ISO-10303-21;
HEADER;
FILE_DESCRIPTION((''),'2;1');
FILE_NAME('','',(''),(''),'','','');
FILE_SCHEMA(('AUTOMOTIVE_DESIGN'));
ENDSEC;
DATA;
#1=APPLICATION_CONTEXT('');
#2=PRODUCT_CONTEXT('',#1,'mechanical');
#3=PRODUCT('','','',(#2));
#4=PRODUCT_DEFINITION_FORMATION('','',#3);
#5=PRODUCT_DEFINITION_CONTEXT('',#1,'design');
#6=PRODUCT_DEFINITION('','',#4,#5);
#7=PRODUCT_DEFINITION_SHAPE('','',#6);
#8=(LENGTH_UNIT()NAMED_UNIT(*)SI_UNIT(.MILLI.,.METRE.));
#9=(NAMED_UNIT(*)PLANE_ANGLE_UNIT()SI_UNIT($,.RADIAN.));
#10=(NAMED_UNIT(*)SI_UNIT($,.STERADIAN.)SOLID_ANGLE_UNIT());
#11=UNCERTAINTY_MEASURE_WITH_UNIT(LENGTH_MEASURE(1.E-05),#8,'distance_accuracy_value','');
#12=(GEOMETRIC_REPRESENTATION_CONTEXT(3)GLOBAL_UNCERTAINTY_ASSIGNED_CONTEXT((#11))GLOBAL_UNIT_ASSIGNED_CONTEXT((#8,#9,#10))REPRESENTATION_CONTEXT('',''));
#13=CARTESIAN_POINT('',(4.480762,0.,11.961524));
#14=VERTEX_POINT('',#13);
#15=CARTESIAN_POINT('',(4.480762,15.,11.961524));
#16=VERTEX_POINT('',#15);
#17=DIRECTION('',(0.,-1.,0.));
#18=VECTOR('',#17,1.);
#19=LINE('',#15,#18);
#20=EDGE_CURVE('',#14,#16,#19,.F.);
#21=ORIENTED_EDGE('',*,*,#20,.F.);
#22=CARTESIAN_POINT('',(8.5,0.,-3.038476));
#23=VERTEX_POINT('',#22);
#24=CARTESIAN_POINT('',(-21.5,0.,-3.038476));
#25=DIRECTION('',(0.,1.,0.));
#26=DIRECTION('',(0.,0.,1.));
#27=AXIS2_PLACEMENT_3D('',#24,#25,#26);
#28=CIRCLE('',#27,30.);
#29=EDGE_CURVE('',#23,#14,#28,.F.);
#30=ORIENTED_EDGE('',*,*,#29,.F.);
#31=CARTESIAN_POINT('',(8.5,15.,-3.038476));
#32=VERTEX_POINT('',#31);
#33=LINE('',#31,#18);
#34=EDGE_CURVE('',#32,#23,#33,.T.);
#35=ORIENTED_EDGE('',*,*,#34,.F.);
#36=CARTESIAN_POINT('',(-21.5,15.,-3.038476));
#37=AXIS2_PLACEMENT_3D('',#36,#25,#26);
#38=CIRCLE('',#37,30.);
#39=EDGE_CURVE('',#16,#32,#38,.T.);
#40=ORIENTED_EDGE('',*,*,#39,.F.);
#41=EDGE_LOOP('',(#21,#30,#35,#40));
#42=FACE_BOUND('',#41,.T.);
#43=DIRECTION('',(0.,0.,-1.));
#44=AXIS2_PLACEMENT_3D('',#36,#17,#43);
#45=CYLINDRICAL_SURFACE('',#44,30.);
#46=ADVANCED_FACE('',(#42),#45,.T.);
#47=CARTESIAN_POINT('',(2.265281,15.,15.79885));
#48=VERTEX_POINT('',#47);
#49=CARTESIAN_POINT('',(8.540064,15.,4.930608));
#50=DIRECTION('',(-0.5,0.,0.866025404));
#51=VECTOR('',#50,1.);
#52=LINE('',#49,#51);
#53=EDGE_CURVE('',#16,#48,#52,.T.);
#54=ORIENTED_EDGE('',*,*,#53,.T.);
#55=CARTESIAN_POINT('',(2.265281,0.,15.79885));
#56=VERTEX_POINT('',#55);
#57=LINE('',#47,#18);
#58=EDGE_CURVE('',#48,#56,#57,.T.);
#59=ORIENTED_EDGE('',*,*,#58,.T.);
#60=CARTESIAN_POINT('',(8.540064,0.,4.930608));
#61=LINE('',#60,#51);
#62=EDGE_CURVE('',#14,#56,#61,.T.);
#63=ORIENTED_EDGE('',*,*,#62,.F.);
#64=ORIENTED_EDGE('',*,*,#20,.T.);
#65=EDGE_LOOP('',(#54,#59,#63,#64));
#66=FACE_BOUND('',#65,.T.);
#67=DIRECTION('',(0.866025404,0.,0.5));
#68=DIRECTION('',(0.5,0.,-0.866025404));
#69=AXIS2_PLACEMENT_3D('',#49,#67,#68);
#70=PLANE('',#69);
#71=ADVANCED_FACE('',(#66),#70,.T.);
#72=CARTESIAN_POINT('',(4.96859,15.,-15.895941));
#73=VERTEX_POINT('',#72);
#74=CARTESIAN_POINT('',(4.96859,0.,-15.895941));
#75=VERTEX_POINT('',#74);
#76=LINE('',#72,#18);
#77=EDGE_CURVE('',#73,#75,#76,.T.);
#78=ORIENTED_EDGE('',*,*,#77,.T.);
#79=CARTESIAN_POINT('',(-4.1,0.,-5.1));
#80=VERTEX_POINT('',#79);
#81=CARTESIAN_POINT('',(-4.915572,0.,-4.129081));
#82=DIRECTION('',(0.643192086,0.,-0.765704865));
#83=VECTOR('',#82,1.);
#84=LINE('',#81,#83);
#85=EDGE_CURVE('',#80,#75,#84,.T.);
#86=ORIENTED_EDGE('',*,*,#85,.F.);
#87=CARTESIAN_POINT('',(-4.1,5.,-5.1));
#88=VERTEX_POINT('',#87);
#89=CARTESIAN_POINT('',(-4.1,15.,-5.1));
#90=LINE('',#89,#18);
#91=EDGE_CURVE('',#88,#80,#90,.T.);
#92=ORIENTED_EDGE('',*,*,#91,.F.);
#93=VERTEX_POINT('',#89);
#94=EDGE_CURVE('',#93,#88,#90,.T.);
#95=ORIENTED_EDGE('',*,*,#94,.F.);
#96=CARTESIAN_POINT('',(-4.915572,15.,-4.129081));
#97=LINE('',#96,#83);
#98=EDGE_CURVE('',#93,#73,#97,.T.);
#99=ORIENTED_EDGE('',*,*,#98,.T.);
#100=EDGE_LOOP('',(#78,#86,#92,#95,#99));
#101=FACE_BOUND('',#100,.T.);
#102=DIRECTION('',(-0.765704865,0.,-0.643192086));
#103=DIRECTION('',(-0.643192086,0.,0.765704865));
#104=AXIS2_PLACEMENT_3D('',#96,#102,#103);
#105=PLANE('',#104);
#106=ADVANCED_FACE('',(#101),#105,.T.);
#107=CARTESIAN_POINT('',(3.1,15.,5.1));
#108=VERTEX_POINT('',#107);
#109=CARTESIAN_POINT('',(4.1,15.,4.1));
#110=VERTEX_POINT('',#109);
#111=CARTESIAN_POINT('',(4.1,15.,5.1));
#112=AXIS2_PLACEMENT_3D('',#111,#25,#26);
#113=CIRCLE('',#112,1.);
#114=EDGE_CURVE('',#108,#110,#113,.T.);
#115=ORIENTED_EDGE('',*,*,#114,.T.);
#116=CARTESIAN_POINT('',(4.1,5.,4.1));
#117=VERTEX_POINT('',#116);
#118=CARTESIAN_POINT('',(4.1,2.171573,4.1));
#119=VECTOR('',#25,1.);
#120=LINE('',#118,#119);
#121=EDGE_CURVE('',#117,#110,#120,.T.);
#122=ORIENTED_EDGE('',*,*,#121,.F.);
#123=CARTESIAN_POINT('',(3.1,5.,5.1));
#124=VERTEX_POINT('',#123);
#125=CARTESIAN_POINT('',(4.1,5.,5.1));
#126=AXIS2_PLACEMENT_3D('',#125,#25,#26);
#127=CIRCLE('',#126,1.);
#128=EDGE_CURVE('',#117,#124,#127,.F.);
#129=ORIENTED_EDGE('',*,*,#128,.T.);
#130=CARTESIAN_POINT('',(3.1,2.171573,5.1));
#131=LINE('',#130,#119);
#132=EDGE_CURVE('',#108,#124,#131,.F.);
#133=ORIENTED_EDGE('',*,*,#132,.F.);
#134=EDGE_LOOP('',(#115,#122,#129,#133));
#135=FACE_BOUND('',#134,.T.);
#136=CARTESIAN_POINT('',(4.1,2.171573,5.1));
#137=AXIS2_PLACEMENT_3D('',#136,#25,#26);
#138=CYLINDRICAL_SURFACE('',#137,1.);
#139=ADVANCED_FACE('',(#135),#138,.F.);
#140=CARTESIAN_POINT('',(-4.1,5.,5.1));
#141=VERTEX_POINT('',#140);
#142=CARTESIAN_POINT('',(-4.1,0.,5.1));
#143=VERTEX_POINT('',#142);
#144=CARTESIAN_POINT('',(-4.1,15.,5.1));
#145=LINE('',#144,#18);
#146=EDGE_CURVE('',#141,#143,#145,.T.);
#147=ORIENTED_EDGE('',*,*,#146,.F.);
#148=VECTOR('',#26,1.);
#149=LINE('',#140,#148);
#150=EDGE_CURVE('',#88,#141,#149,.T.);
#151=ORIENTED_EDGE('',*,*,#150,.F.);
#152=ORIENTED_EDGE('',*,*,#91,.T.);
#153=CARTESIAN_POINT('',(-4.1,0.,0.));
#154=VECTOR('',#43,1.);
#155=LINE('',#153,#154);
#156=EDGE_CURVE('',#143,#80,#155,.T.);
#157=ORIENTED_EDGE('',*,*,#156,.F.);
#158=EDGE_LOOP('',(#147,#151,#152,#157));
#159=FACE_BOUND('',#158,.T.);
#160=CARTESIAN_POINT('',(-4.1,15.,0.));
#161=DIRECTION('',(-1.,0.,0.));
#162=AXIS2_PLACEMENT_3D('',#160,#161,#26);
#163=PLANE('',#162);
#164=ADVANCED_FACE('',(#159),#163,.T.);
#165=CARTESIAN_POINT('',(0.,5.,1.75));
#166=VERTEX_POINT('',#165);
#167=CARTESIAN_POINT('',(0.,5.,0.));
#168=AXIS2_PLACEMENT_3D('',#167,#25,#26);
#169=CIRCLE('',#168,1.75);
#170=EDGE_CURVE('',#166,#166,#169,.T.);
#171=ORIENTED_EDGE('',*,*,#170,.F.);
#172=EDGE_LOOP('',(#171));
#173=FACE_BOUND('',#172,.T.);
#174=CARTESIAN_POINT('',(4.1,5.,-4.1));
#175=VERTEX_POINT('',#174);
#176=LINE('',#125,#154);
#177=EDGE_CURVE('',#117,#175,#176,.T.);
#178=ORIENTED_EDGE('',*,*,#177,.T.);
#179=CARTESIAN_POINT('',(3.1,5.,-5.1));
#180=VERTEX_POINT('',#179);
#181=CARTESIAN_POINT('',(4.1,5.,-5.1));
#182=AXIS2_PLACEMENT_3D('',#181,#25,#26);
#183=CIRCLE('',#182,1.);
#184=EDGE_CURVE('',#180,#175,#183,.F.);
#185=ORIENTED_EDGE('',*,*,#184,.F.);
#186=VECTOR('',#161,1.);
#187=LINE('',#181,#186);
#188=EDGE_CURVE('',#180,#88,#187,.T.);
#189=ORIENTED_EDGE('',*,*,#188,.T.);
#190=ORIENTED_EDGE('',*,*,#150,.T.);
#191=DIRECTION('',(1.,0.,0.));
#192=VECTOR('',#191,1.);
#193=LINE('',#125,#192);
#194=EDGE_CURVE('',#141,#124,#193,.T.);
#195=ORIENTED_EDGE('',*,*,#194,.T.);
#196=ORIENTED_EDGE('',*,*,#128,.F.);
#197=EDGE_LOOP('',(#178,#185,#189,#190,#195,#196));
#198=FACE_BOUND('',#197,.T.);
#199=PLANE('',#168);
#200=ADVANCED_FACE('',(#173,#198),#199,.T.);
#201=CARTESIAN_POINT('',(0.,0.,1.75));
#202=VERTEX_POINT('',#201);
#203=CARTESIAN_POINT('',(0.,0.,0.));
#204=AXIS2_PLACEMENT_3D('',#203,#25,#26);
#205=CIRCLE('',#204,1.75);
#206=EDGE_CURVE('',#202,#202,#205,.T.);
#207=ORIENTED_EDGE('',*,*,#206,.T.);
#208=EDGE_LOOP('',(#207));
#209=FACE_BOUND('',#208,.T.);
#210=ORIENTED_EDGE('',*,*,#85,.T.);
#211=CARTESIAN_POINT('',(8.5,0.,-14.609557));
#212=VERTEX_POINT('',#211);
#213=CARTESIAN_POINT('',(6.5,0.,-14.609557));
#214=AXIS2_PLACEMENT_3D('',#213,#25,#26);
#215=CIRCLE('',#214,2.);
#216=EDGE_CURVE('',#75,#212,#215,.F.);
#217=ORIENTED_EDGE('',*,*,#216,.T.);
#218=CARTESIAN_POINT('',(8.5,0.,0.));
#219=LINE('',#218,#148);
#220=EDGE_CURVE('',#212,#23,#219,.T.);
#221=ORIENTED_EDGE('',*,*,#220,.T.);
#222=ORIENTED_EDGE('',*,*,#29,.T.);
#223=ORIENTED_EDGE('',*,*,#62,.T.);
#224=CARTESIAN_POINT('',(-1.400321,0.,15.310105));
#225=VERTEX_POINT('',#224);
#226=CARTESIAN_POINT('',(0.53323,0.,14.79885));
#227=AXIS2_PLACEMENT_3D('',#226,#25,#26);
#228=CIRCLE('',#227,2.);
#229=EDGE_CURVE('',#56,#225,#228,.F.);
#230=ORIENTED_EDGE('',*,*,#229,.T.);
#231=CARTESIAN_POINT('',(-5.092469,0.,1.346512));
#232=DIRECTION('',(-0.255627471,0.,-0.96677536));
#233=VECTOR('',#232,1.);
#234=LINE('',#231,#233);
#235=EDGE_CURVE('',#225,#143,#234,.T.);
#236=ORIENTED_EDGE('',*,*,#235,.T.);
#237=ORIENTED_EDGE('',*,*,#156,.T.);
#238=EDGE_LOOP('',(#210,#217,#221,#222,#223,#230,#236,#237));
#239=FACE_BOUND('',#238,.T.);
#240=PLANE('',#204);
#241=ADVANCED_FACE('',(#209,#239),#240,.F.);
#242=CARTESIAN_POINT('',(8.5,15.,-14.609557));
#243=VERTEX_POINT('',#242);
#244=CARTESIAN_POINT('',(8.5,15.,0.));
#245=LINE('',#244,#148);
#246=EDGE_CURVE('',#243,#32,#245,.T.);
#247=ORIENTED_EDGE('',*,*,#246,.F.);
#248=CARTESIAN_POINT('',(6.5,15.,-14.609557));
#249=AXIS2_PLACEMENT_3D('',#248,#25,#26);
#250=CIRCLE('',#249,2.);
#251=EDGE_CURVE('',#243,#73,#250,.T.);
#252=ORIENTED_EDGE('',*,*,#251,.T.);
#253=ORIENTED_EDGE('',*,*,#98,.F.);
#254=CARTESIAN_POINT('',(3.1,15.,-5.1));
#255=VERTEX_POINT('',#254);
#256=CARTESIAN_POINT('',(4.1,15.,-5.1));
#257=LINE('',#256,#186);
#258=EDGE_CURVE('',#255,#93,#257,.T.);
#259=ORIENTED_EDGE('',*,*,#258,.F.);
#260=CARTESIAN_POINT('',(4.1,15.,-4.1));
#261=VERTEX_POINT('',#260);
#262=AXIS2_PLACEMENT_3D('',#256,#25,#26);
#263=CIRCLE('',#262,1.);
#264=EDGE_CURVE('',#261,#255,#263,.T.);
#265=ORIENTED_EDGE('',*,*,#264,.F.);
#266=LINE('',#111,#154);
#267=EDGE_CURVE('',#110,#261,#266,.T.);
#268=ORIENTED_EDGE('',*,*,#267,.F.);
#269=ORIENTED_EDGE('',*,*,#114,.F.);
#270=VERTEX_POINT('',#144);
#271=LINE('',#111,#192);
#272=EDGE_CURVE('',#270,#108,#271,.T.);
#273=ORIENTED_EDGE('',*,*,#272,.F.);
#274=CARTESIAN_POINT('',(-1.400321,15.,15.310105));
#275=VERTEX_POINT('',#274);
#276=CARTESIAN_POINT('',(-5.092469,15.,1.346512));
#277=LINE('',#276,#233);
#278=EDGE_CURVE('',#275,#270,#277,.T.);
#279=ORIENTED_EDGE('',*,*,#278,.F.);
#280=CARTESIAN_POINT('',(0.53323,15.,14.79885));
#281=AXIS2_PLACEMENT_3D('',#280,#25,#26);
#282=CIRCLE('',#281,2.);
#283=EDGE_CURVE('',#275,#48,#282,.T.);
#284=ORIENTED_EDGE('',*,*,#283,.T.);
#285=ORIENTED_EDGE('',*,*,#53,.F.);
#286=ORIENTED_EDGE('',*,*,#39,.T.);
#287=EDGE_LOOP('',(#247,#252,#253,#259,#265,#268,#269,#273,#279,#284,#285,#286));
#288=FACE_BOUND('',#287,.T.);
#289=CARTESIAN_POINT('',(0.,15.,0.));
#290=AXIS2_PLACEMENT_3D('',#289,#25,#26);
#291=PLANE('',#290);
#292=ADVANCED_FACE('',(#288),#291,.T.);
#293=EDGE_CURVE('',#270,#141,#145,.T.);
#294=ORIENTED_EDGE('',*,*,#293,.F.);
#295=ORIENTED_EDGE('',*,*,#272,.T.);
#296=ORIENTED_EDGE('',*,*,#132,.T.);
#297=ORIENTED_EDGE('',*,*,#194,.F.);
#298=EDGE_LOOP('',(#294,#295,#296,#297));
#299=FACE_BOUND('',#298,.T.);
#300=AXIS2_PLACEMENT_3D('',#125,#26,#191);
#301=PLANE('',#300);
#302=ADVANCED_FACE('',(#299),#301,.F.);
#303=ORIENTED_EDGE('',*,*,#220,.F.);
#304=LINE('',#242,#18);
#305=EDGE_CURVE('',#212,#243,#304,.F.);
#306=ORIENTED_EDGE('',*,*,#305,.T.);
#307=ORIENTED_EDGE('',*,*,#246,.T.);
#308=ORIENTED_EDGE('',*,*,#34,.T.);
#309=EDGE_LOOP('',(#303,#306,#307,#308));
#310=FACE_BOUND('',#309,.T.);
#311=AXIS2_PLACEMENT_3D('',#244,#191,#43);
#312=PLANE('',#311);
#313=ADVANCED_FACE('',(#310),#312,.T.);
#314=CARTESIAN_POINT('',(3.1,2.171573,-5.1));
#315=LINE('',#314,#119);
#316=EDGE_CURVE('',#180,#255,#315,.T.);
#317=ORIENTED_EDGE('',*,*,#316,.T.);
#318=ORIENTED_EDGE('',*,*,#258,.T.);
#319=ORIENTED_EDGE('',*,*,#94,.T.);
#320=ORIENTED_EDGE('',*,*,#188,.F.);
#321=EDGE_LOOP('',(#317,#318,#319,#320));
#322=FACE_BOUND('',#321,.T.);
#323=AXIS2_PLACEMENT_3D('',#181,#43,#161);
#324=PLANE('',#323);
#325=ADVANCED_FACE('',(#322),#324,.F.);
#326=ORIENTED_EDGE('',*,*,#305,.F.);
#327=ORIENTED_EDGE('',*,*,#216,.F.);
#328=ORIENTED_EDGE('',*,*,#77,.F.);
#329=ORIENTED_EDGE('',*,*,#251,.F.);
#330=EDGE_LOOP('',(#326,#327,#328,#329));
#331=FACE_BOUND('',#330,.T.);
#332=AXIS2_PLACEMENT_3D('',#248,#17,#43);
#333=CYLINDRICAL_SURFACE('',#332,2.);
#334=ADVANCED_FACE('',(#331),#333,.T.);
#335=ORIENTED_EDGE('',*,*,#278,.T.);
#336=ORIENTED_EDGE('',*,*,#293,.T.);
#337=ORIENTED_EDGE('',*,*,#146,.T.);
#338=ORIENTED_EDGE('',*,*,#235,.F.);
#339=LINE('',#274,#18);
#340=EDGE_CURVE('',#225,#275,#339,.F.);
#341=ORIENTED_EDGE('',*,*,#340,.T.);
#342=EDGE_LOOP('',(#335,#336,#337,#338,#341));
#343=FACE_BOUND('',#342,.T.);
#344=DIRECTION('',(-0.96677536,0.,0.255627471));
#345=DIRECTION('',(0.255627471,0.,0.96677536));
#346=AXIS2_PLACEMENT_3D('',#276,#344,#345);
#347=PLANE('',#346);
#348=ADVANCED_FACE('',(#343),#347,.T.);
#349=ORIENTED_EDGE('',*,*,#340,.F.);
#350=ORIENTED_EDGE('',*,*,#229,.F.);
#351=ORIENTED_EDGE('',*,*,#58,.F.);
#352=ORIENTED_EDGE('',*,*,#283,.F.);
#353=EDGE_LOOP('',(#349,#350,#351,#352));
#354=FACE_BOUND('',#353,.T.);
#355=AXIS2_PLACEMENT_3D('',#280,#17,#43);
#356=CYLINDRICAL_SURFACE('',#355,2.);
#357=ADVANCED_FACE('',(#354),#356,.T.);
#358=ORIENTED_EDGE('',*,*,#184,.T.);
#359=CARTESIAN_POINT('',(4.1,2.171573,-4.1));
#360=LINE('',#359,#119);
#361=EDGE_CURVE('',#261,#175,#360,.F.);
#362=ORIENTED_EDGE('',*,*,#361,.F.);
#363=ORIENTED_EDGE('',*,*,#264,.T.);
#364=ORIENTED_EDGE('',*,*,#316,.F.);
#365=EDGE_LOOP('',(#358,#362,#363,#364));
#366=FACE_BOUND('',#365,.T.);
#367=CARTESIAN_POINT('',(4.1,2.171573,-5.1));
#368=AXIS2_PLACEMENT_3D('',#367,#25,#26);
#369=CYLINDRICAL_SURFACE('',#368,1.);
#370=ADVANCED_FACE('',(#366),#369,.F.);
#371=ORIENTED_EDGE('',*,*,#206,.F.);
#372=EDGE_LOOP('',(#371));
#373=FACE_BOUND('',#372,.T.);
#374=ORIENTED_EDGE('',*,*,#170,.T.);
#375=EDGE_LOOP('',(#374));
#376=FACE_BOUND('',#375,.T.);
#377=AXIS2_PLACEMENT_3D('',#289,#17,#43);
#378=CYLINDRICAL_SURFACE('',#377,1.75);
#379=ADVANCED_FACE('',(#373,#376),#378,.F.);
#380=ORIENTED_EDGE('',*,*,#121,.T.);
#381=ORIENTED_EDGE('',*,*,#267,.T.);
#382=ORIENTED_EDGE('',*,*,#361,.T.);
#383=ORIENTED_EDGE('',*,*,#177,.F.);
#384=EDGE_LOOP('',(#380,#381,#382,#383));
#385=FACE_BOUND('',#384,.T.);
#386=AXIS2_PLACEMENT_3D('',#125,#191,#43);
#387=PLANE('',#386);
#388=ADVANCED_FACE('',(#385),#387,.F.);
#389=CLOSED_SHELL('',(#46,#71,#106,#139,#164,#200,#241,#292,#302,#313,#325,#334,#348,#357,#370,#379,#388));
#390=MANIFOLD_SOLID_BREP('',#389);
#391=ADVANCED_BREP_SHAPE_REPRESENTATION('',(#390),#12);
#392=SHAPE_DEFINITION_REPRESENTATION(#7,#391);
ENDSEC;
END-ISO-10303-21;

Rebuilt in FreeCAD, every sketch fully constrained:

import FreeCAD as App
import Part
import Sketcher

V = App.Vector
Q = App.Units.Quantity


def edges_at(feature, points):
    """Names of the edges that pass closest to the given points."""
    edges = feature.Shape.Edges
    near = lambda p: min(range(len(edges)), key=lambda i: edges[i].distToShape(Part.Vertex(*p))[0])
    return sorted({f"Edge{near(p) + 1}" for p in points})


def add_polygon(sketch, points):
    """Adds a closed chain of lines whose ends are joined by coincident constraints."""
    first, n = sketch.GeometryCount, len(points)
    for a, b in zip(points, points[1:] + points[:1]):
        sketch.addGeometry(Part.LineSegment(App.Vector(*a, 0), App.Vector(*b, 0)), False)
    for i in range(n):
        sketch.addConstraint(Sketcher.Constraint("Coincident", first + i, 2, first + (i + 1) % n, 1))

doc = App.newDocument("Part")
body = doc.addObject("PartDesign::Body", "Body")

sketch1 = doc.addObject("Sketcher::SketchObject", "Sketch")
body.addObject(sketch1)
sketch1.AttachmentSupport = (doc.XZ_Plane, [""])
sketch1.MapMode = "FlatFace"
add_polygon(sketch1, [(-4.1, 5.1), (-0.2, 20), (8.5, 5), (8.5, -20.1), (-4.1, -5.1)])
sketch1.addGeometry(Part.Circle(V(0, 0, 0), V(0, 0, 1), 1.8), False)
sketch1.addConstraint([
    Sketcher.Constraint("Vertical", 2),
    Sketcher.Constraint("Vertical", 4),
    Sketcher.Constraint("Coincident", 5, 3, -1, 1),
    Sketcher.Constraint("Diameter", 5, Q("3.5 mm")),
    Sketcher.Constraint("Angle", 1, Q("-60 deg")),
    Sketcher.Constraint("DistanceY", 2, 2, 2, 1, Q("25.1 mm")),
    Sketcher.Constraint("DistanceY", 4, 1, 4, 2, Q("10.2 mm")),
    Sketcher.Constraint("DistanceY", -1, 1, 0, 2, Q("20 mm")),
    Sketcher.Constraint("DistanceY", -1, 1, 1, 2, Q("5 mm")),
    Sketcher.Constraint("DistanceY", 2, 2, 3, 2, Q("15 mm")),
    Sketcher.Constraint("DistanceX", -1, 1, 1, 2, Q("8.5 mm")),
    Sketcher.Constraint("DistanceX", 3, 2, -1, 1, Q("4.1 mm")),
])
pad1 = doc.addObject("PartDesign::Pad", "Pad")
body.addObject(pad1)
pad1.Profile = sketch1
pad1.Length = 15
pad1.Reversed = True

sketch2 = doc.addObject("Sketcher::SketchObject", "Sketch001")
body.addObject(sketch2)
sketch2.AttachmentSupport = (doc.XZ_Plane, [""])
sketch2.MapMode = "FlatFace"
sketch2.AttachmentOffset = App.Placement(V(0, 0, -15), App.Rotation())
add_polygon(sketch2, [(-4, -5), (-4, 5), (4, 5), (4, -5)])
sketch2.addConstraint([
    Sketcher.Constraint("Vertical", 0),
    Sketcher.Constraint("Horizontal", 1),
    Sketcher.Constraint("Vertical", 2),
    Sketcher.Constraint("Horizontal", 3),
    Sketcher.Constraint("Symmetric", 0, 2, 2, 2, -1, 1),
    Sketcher.Constraint("DistanceX", 1, 1, 1, 2, Q("8.2 mm")),
    Sketcher.Constraint("DistanceY", 0, 1, 0, 2, Q("10.2 mm")),
])
pocket1 = doc.addObject("PartDesign::Pocket", "Pocket")
body.addObject(pocket1)
pocket1.Profile = sketch2
pocket1.Length = 10
pocket1.Reversed = True

sketch3 = doc.addObject("Sketcher::SketchObject", "Sketch002")
body.addObject(sketch3)
sketch3.AttachmentSupport = (doc.XZ_Plane, [""])
sketch3.MapMode = "FlatFace"
sketch3.AttachmentOffset = App.Placement(V(0, 0, -15), App.Rotation())
sketch3.addGeometry([
    Part.Circle(V(4.1, -5.1, 0), V(0, 0, 1), 1),
    Part.Circle(V(4.1, 5.1, 0), V(0, 0, 1), 1),
], False)
sketch3.addConstraint([
    Sketcher.Constraint("Equal", 0, 1),
    Sketcher.Constraint("Symmetric", 0, 3, 1, 3, -1),
    Sketcher.Constraint("Diameter", 0, Q("2 mm")),
    Sketcher.Constraint("DistanceX", -1, 1, 0, 3, Q("4.1 mm")),
    Sketcher.Constraint("DistanceY", 0, 3, -1, 1, Q("5.1 mm")),
])
pocket2 = doc.addObject("PartDesign::Pocket", "Pocket001")
body.addObject(pocket2)
pocket2.Profile = sketch3
pocket2.Length = 10
pocket2.Reversed = True
doc.recompute()

fillet = doc.addObject("PartDesign::Fillet", "Fillet")
body.addObject(fillet)
fillet.Base = (pocket2, edges_at(pocket2, [(8.5, 7.5, 5)]))
fillet.Radius = 30
doc.recompute()

fillet2 = doc.addObject("PartDesign::Fillet", "Fillet001")
body.addObject(fillet2)
fillet2.Base = (fillet, edges_at(fillet, [(8.5, 7.5, -20.1), (-0.16, 7.5, 20)]))
fillet2.Radius = 2

doc.recompute()
